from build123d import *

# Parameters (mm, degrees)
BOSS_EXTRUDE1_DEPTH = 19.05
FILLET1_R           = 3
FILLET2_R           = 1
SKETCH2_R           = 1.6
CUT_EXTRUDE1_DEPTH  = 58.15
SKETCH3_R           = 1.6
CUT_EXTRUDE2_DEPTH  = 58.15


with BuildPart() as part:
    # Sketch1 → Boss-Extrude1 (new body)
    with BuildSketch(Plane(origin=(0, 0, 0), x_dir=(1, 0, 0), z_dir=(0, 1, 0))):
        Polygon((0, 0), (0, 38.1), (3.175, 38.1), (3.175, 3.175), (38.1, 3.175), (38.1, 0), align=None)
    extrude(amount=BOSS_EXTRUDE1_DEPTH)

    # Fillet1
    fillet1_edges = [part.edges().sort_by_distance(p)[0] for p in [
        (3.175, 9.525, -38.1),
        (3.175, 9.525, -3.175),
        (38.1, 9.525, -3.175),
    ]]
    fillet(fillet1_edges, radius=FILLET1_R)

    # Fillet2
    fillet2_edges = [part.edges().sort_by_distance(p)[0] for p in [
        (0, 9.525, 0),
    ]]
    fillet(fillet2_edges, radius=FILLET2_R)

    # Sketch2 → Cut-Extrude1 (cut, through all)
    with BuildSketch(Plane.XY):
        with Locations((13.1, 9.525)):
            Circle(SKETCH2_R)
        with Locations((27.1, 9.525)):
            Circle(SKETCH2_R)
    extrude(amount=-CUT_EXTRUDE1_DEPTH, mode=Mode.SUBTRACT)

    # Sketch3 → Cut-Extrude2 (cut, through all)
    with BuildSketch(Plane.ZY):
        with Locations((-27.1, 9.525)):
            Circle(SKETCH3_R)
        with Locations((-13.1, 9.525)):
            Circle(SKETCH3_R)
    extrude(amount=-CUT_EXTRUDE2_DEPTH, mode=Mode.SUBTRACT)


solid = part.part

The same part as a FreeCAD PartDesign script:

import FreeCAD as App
import Part
import Sketcher

V = App.Vector
Q = App.Units.Quantity


def edges_at(feature, points):
    """Names of the edges that pass closest to the given points."""
    edges = feature.Shape.Edges
    near = lambda p: min(range(len(edges)), key=lambda i: edges[i].distToShape(Part.Vertex(*p))[0])
    return sorted({f"Edge{near(p) + 1}" for p in points})

doc = App.newDocument("Part")
body = doc.addObject("PartDesign::Body", "Body")

sketch1 = body.newObject("Sketcher::SketchObject", "Sketch")
sketch1.AttachmentSupport = (doc.getObject("XZ_Plane"), [""])
sketch1.MapMode = "FlatFace"
sketch1.addGeometry([
    Part.LineSegment(V(0, -38.1, 0), V(0, 0, 0)),
    Part.LineSegment(V(0, 0, 0), V(38.1, 0, 0)),
    Part.LineSegment(V(38.1, 0, 0), V(38.1, -3.2, 0)),
    Part.LineSegment(V(38.1, -3.2, 0), V(3.2, -3.2, 0)),
    Part.LineSegment(V(3.2, -3.2, 0), V(3.2, -38.1, 0)),
    Part.LineSegment(V(3.2, -38.1, 0), V(0, -38.1, 0)),
], False)
sketch1.addConstraint([
    Sketcher.Constraint("Coincident", 0, 2, 1, 1),
    Sketcher.Constraint("Coincident", 1, 2, 2, 1),
    Sketcher.Constraint("Coincident", 2, 2, 3, 1),
    Sketcher.Constraint("Coincident", 3, 2, 4, 1),
    Sketcher.Constraint("Coincident", 4, 2, 5, 1),
    Sketcher.Constraint("Coincident", 5, 2, 0, 1),
    Sketcher.Constraint("Vertical", 0),
    Sketcher.Constraint("Horizontal", 1),
    Sketcher.Constraint("Vertical", 2),
    Sketcher.Constraint("Horizontal", 3),
    Sketcher.Constraint("Vertical", 4),
    Sketcher.Constraint("Horizontal", 5),
    Sketcher.Constraint("Coincident", 0, 2, -1, 1),
    Sketcher.Constraint("Equal", 1, 0),
    Sketcher.Constraint("Equal", 5, 2),
    Sketcher.Constraint("DistanceX", 1, 1, 1, 2, Q("1.5 in")),
    Sketcher.Constraint("DistanceX", 3, 2, 3, 1, Q("1.375 in")),
])
pad1 = body.newObject("PartDesign::Pad", "Pad")
pad1.Profile = sketch1
pad1.Length = Q("0.75 in")
pad1.Reversed = True
doc.recompute()

fillet = body.newObject("PartDesign::Fillet", "Fillet")
fillet.Base = (pad1, edges_at(pad1, [(3.175, 9.525, -38.1), (3.175, 9.525, -3.175), (38.1, 9.525, -3.175)]))
fillet.Radius = 3
doc.recompute()

fillet2 = body.newObject("PartDesign::Fillet", "Fillet001")
fillet2.Base = (fillet, edges_at(fillet, [(0, 9.525, 0)]))
fillet2.Radius = 1

sketch2 = body.newObject("Sketcher::SketchObject", "Sketch001")
sketch2.AttachmentSupport = (doc.getObject("XY_Plane"), [""])
sketch2.MapMode = "FlatFace"
sketch2.addGeometry([
    Part.Circle(V(13.1, 9.5, 0), V(0, 0, 1), 1.6),
    Part.Circle(V(27.1, 9.5, 0), V(0, 0, 1), 1.6),
], False)
sketch2.addConstraint([
    Sketcher.Constraint("Equal", 0, 1),
    Sketcher.Constraint("Horizontal", 0, 3, 1, 3),
    Sketcher.Constraint("Diameter", 0, Q("3.2 mm")),
    Sketcher.Constraint("DistanceY", -1, 1, 0, 3, Q("0.375 in")),
    Sketcher.Constraint("DistanceX", -1, 1, 0, 3, Q("13.1 mm")),
    Sketcher.Constraint("DistanceX", -1, 1, 1, 3, Q("27.1 mm")),
])
pocket1 = body.newObject("PartDesign::Pocket", "Pocket")
pocket1.Profile = sketch2
pocket1.Type = "ThroughAll"

sketch3 = body.newObject("Sketcher::SketchObject", "Sketch002")
sketch3.AttachmentSupport = (doc.getObject("YZ_Plane"), [""])
sketch3.MapMode = "FlatFace"
sketch3.addGeometry([
    Part.Circle(V(9.5, -27.1, 0), V(0, 0, 1), 1.6),
    Part.Circle(V(9.5, -13.1, 0), V(0, 0, 1), 1.6),
], False)
sketch3.addConstraint([
    Sketcher.Constraint("Equal", 0, 1),
    Sketcher.Constraint("Vertical", 0, 3, 1, 3),
    Sketcher.Constraint("Diameter", 0, Q("3.2 mm")),
    Sketcher.Constraint("DistanceX", -1, 1, 0, 3, Q("0.375 in")),
    Sketcher.Constraint("DistanceY", 0, 3, -1, 1, Q("27.1 mm")),
    Sketcher.Constraint("DistanceY", 1, 3, -1, 1, Q("13.1 mm")),
])
pocket2 = body.newObject("PartDesign::Pocket", "Pocket001")
pocket2.Profile = sketch3
pocket2.Type = "ThroughAll"
pocket2.Reversed = True

doc.recompute()
